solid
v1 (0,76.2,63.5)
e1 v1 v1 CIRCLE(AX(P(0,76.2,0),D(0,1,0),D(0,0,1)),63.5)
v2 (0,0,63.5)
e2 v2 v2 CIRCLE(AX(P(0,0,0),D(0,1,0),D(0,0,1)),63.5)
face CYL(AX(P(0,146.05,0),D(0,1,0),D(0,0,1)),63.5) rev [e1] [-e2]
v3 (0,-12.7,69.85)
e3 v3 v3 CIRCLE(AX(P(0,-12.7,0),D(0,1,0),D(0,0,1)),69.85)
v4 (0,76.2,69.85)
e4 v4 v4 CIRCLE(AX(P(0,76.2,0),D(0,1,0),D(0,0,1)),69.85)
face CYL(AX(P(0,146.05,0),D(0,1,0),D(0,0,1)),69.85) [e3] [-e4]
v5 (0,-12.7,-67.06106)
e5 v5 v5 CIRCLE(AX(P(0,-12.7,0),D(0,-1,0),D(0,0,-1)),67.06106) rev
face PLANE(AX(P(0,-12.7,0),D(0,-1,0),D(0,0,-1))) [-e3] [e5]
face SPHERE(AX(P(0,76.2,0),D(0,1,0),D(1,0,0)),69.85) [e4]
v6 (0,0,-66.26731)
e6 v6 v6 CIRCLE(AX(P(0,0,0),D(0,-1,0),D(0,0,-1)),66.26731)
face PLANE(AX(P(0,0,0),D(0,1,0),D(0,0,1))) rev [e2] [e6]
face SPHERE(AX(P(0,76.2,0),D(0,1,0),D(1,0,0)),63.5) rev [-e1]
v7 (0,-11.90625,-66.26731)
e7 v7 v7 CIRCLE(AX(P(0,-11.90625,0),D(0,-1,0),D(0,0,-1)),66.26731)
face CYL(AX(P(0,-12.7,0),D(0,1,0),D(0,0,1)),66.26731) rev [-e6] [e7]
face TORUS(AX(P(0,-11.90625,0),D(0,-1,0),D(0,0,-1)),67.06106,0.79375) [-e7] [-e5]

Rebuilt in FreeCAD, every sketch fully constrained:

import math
import FreeCAD as App
import Part
import Sketcher
from FreeCAD import Vector
Q = App.Units.Quantity


def edges_at(feature, points):
    """Names of the edges that pass closest to the given points."""
    edges = feature.Shape.Edges
    near = lambda p: min(range(len(edges)), key=lambda i: edges[i].distToShape(Part.Vertex(*p))[0])
    return sorted({f"Edge{near(p) + 1}" for p in points})

doc = App.newDocument("Part")
params = doc.addObject("Spreadsheet::Sheet", "Params")
for row, (alias, value) in enumerate([
    ("sketch1_radius", "2.5 in"),
    ("sketch1_height", "3 in"),
    ("sketch1_radius2", "2.75 in"),
    ("sketch1_height2", "0.5 in"),
    ("revolution_angle", "360 deg"),
    ("pad1_length", "0.5 in"),
    ("fillet_radius", "0.03125 in"),
], start=1):
    params.set(f"A{row}", alias)
    params.set(f"B{row}", "=" + value)
    params.setAlias(f"B{row}", alias)

body = doc.addObject("PartDesign::Body", "Body")

sketch1 = doc.addObject("Sketcher::SketchObject", "Sketch")
body.addObject(sketch1)
sketch1.AttachmentSupport = (doc.XY_Plane, [""])
sketch1.MapMode = "FlatFace"
sketch1.addGeometry([
    Part.ArcOfCircle(Part.Circle(Vector(0, 76.2, 0), Vector(0, 0, 1), 69.8), math.radians(0), math.radians(90)),
    Part.LineSegment(Vector(0, 146.1, 0), Vector(0, 139.7, 0)),
    Part.ArcOfCircle(Part.Circle(Vector(0, 76.2, 0), Vector(0, 0, 1), 63.5), math.radians(0), math.radians(90)),
    Part.LineSegment(Vector(63.5, 76.2, 0), Vector(63.5, 0, 0)),
    Part.LineSegment(Vector(63.5, 0, 0), Vector(66.7, 0, 0)),
    Part.LineSegment(Vector(66.7, 0, 0), Vector(66.7, -12.7, 0)),
    Part.LineSegment(Vector(66.7, -12.7, 0), Vector(69.8, -12.7, 0)),
    Part.LineSegment(Vector(69.8, -12.7, 0), Vector(69.8, 76.2, 0)),
], False)
sketch1.addConstraint([
    Sketcher.Constraint("Coincident", 0, 2, 1, 1),
    Sketcher.Constraint("Coincident", 1, 2, 2, 2),
    Sketcher.Constraint("Tangent", 2, 1, 3, 1),
    Sketcher.Constraint("Coincident", 3, 2, 4, 1),
    Sketcher.Constraint("Coincident", 4, 2, 5, 1),
    Sketcher.Constraint("Coincident", 5, 2, 6, 1),
    Sketcher.Constraint("Coincident", 6, 2, 7, 1),
    Sketcher.Constraint("Tangent", 7, 2, 0, 1),
    Sketcher.Constraint("Vertical", 1),
    Sketcher.Constraint("Vertical", 3),
    Sketcher.Constraint("Horizontal", 4),
    Sketcher.Constraint("Vertical", 5),
    Sketcher.Constraint("Horizontal", 6),
    Sketcher.Constraint("Vertical", 7),
    Sketcher.Constraint("Coincident", 2, 3, 0, 3),
    Sketcher.Constraint("PointOnObject", 0, 3, -2),
    Sketcher.Constraint("PointOnObject", 0, 2, -2),
    Sketcher.Constraint("PointOnObject", 3, 2, -1),
    Sketcher.Constraint("Equal", 4, 6),
    Sketcher.Constraint("Radius", 2, Q("2.5 in")),
    Sketcher.Constraint("DistanceY", 3, 2, 3, 1, Q("3 in")),
    Sketcher.Constraint("Radius", 0, Q("2.75 in")),
    Sketcher.Constraint("DistanceY", 5, 2, 5, 1, Q("0.5 in")),
])
sketch1.setExpression("Constraints[19]", "Params.sketch1_radius")
sketch1.setExpression("Constraints[20]", "Params.sketch1_height")
sketch1.setExpression("Constraints[21]", "Params.sketch1_radius2")
sketch1.setExpression("Constraints[22]", "Params.sketch1_height2")
revolution = doc.addObject("PartDesign::Revolution", "Revolution")
body.addObject(revolution)
revolution.Profile = sketch1
revolution.ReferenceAxis = (sketch1, ["V_Axis"])
revolution.setExpression("Angle", "Params.revolution_angle")

sketch2 = doc.addObject("Sketcher::SketchObject", "Sketch001")
body.addObject(sketch2)
sketch2.AttachmentSupport = (doc.XZ_Plane, [""])
sketch2.MapMode = "FlatFace"
sketch2.addGeometry([
    Part.Circle(Vector(0, 0, 0), Vector(0, 0, 1), 67),
    Part.Circle(Vector(0, 0, 0), Vector(0, 0, 1), 66),
], False)
sketch2.addConstraint([
    Sketcher.Constraint("Coincident", 0, 3, -1, 1),
    Sketcher.Constraint("Coincident", 1, 3, -1, 1),
    Sketcher.Constraint("Diameter", 0, Q("134.122121 mm")),
    Sketcher.Constraint("Diameter", 1, Q("132.534621 mm")),
])
pad1 = doc.addObject("PartDesign::Pad", "Pad")
body.addObject(pad1)
pad1.Profile = sketch2
pad1.setExpression("Length", "Params.pad1_length")
doc.recompute()

fillet = doc.addObject("PartDesign::Fillet", "Fillet")
body.addObject(fillet)
fillet.Base = (pad1, edges_at(pad1, [(66.267, -12.7, 0)]))
fillet.setExpression("Radius", "Params.fillet_radius")

doc.recompute()
